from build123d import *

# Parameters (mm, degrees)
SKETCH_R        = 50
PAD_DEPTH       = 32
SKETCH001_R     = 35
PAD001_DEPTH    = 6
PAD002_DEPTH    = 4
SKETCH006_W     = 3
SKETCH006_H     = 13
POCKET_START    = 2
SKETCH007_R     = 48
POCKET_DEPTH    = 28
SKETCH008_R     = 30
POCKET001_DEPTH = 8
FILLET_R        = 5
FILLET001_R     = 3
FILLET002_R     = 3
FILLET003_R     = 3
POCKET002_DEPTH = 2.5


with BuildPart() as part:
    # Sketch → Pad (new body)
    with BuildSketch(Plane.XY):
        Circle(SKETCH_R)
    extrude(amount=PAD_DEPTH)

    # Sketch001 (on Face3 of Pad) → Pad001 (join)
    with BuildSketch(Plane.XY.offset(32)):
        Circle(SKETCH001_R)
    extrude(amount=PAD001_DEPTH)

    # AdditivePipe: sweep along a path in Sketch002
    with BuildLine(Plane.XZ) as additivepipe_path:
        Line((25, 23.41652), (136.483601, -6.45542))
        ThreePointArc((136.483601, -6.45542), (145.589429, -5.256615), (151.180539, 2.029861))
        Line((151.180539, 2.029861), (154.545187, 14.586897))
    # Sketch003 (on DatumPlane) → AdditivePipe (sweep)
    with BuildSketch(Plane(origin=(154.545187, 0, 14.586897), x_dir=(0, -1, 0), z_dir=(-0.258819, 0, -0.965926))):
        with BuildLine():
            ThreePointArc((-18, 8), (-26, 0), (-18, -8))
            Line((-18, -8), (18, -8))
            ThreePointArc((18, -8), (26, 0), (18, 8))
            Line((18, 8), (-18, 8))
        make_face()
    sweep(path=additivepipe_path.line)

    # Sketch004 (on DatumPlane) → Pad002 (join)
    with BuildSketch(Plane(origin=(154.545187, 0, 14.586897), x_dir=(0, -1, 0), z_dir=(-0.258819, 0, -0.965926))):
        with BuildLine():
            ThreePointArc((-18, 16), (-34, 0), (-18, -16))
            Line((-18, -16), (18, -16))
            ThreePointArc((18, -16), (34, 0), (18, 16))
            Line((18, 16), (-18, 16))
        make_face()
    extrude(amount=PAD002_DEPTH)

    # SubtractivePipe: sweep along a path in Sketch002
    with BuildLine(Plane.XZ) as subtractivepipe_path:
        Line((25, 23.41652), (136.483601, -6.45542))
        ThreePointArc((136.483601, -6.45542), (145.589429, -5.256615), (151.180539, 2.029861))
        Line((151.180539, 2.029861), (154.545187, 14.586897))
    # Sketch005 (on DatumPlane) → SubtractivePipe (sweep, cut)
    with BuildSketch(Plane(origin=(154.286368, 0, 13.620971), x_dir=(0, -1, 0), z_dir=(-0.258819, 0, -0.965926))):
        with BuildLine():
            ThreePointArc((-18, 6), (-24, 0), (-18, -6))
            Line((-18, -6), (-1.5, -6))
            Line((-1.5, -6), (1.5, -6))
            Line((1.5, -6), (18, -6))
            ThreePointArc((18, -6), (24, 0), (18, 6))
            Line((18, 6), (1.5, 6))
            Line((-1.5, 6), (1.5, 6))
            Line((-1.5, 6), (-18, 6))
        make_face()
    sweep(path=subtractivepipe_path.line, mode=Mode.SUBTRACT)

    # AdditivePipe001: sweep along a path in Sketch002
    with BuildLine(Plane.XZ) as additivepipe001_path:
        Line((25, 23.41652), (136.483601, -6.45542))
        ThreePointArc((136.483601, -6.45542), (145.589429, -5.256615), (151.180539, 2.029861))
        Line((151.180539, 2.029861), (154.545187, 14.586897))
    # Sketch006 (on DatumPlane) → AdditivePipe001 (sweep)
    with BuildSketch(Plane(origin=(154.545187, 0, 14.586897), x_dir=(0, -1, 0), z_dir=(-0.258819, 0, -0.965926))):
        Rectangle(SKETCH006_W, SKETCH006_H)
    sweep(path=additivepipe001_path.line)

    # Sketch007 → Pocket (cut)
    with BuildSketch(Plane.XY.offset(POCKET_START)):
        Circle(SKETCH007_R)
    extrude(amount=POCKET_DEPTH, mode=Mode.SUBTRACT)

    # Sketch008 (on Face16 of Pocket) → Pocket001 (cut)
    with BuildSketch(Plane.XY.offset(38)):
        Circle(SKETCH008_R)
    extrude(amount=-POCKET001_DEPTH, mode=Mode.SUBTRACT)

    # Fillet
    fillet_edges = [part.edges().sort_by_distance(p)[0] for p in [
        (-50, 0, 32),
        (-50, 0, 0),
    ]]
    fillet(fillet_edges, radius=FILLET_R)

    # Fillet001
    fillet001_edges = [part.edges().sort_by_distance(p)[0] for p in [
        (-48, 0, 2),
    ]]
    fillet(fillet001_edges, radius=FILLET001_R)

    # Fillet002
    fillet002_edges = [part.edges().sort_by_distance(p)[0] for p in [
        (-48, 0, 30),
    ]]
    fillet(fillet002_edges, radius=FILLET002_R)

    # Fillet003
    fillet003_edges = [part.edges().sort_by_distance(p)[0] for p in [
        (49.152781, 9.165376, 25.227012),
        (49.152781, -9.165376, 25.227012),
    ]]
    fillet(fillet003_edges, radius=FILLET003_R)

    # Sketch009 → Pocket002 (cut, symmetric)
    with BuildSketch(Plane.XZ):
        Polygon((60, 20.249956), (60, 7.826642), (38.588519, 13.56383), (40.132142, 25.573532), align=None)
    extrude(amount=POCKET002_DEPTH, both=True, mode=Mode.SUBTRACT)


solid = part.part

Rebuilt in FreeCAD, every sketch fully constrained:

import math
import FreeCAD as App
import Part
import Sketcher
Q = App.Units.Quantity


def edges_at(feature, points):
    """Names of the edges that pass closest to the given points."""
    edges = feature.Shape.Edges
    near = lambda p: min(range(len(edges)), key=lambda i: edges[i].distToShape(Part.Vertex(*p))[0])
    return sorted({f"Edge{near(p) + 1}" for p in points})


def add_polygon(sketch, points):
    """Adds a closed chain of lines whose ends are joined by coincident constraints."""
    first, n = sketch.GeometryCount, len(points)
    for a, b in zip(points, points[1:] + points[:1]):
        sketch.addGeometry(Part.LineSegment(App.Vector(*a, 0), App.Vector(*b, 0)), False)
    for i in range(n):
        sketch.addConstraint(Sketcher.Constraint("Coincident", first + i, 2, first + (i + 1) % n, 1))

doc = App.newDocument("Part")
body = doc.addObject("PartDesign::Body", "Body")

# Sketch on XY plane
sketch1 = body.newObject("Sketcher::SketchObject", "Sketch")
sketch1.AttachmentSupport = (doc.getObject("XY_Plane"), [""])
sketch1.MapMode = "FlatFace"
sketch1.addGeometry(Part.Circle(App.Vector(0, 0, 0), App.Vector(0, 0, 1), 50), False)
sketch1.addConstraint(Sketcher.Constraint("Coincident", 0, 3, -1, 1))
sketch1.addConstraint(Sketcher.Constraint("Diameter", 0, 100.0))
pad1 = body.newObject("PartDesign::Pad", "Pad")
pad1.Profile = sketch1
pad1.Length = 32

# Sketch on XY plane
sketch2 = body.newObject("Sketcher::SketchObject", "Sketch001")
sketch2.AttachmentSupport = (doc.getObject("XY_Plane"), [""])
sketch2.MapMode = "FlatFace"
sketch2.AttachmentOffset = App.Placement(App.Vector(0, 0, 32), App.Rotation())
sketch2.addGeometry(Part.Circle(App.Vector(0, 0, 0), App.Vector(0, 0, 1), 35), False)
sketch2.addConstraint(Sketcher.Constraint("Coincident", 0, 3, -1, 1))
sketch2.addConstraint(Sketcher.Constraint("Diameter", 0, 70.0))
pad2 = body.newObject("PartDesign::Pad", "Pad001")
pad2.Profile = sketch2
pad2.Length = 6

# Sketch on an angled plane
sketch3 = body.newObject("Sketcher::SketchObject", "Sketch002")
sketch3.Placement = App.Placement(App.Vector(154.545187, 0, 14.586897), App.Rotation(App.Vector(0, -1, 0), App.Vector(-0.965925849, 0, 0.25881896), App.Vector(-0.25881896, 0, -0.965925849), "ZXY"))
sketch3.addGeometry(Part.ArcOfCircle(Part.Circle(App.Vector(-18, 0, 0), App.Vector(0, 0, 1), 8), math.radians(90), math.radians(270)), False)
sketch3.addGeometry(Part.LineSegment(App.Vector(-18, -8, 0), App.Vector(18, -8, 0)), False)
sketch3.addGeometry(Part.ArcOfCircle(Part.Circle(App.Vector(18, 0, 0), App.Vector(0, 0, 1), 8), math.radians(-90), math.radians(90)), False)
sketch3.addGeometry(Part.LineSegment(App.Vector(18, 8, 0), App.Vector(-18, 8, 0)), False)
sketch3.addConstraint(Sketcher.Constraint("Tangent", 0, 2, 1, 1))
sketch3.addConstraint(Sketcher.Constraint("Tangent", 1, 2, 2, 1))
sketch3.addConstraint(Sketcher.Constraint("Tangent", 2, 2, 3, 1))
sketch3.addConstraint(Sketcher.Constraint("Tangent", 3, 2, 0, 1))
sketch3.addConstraint(Sketcher.Constraint("Horizontal", 1))
sketch3.addConstraint(Sketcher.Constraint("Horizontal", 3))
sketch3.addConstraint(Sketcher.Constraint("Symmetric", 0, 3, 2, 3, -1, 1))
sketch3.addConstraint(Sketcher.Constraint("Radius", 0, 8.0))
sketch3.addConstraint(Sketcher.Constraint("DistanceX", 1, 1, 1, 2, 36.0))

# Sketch on XZ plane
sketch4 = body.newObject("Sketcher::SketchObject", "Sketch003")
sketch4.AttachmentSupport = (doc.getObject("XZ_Plane"), [""])
sketch4.MapMode = "FlatFace"
sketch4.addGeometry(Part.LineSegment(App.Vector(25, 23.41652, 0), App.Vector(136.483601, -6.45542, 0)), False)
sketch4.addGeometry(Part.ArcOfCircle(Part.Circle(App.Vector(139.589429, 5.13569, 0), App.Vector(0, 0, 1), 12), math.radians(-104.999999), math.radians(-15.000002)), False)
sketch4.addGeometry(Part.LineSegment(App.Vector(151.180539, 2.029861, 0), App.Vector(154.545187, 14.586897, 0)), False)
sketch4.addConstraint(Sketcher.Constraint("Tangent", 0, 2, 1, 1))
sketch4.addConstraint(Sketcher.Constraint("Tangent", 1, 2, 2, 1))
sketch4.addConstraint(Sketcher.Constraint("Perpendicular", 0, 2))
sketch4.addConstraint(Sketcher.Constraint("Radius", 1, 12.0))
sketch4.addConstraint(Sketcher.Constraint("Angle", 0, Q("-15 deg")))
sketch4.addConstraint(Sketcher.Constraint("Distance", 2, 13.0))
sketch4.addConstraint(Sketcher.Constraint("DistanceX", -1, 1, 0, 1, 25.0))
sketch4.addConstraint(Sketcher.Constraint("DistanceX", -1, 1, 0, 2, 136.483601))
sketch4.addConstraint(Sketcher.Constraint("DistanceY", -1, 1, 1, 3, 5.13569))
doc.recompute()

additivepipe = body.newObject("PartDesign::AdditivePipe", "AdditivePipe")
additivepipe.Profile = sketch3
additivepipe.Spine = (sketch4, ["Edge1", "Edge2", "Edge3"])

# Sketch on an angled plane
sketch5 = body.newObject("Sketcher::SketchObject", "Sketch004")
sketch5.Placement = App.Placement(App.Vector(154.545187, 0, 14.586897), App.Rotation(App.Vector(0, -1, 0), App.Vector(-0.965925849, 0, 0.25881896), App.Vector(-0.25881896, 0, -0.965925849), "ZXY"))
sketch5.addGeometry(Part.ArcOfCircle(Part.Circle(App.Vector(-18, 0, 0), App.Vector(0, 0, 1), 16), math.radians(90), math.radians(270)), False)
sketch5.addGeometry(Part.LineSegment(App.Vector(-18, -16, 0), App.Vector(18, -16, 0)), False)
sketch5.addGeometry(Part.ArcOfCircle(Part.Circle(App.Vector(18, 0, 0), App.Vector(0, 0, 1), 16), math.radians(-90), math.radians(90)), False)
sketch5.addGeometry(Part.LineSegment(App.Vector(18, 16, 0), App.Vector(-18, 16, 0)), False)
sketch5.addConstraint(Sketcher.Constraint("Tangent", 0, 2, 1, 1))
sketch5.addConstraint(Sketcher.Constraint("Tangent", 1, 2, 2, 1))
sketch5.addConstraint(Sketcher.Constraint("Tangent", 2, 2, 3, 1))
sketch5.addConstraint(Sketcher.Constraint("Tangent", 3, 2, 0, 1))
sketch5.addConstraint(Sketcher.Constraint("Horizontal", 1))
sketch5.addConstraint(Sketcher.Constraint("Horizontal", 3))
sketch5.addConstraint(Sketcher.Constraint("Symmetric", 0, 3, 2, 3, -1, 1))
sketch5.addConstraint(Sketcher.Constraint("Radius", 0, 16.0))
sketch5.addConstraint(Sketcher.Constraint("DistanceX", 1, 1, 1, 2, 36.0))
pad3 = body.newObject("PartDesign::Pad", "Pad002")
pad3.Profile = sketch5
pad3.Length = 4

# Sketch on an angled plane
sketch6 = body.newObject("Sketcher::SketchObject", "Sketch005")
sketch6.Placement = App.Placement(App.Vector(154.286368, 0, 13.620971), App.Rotation(App.Vector(0, -1, 0), App.Vector(-0.965925849, 0, 0.25881896), App.Vector(-0.25881896, 0, -0.965925849), "ZXY"))
sketch6.addGeometry(Part.ArcOfCircle(Part.Circle(App.Vector(-18, 0, 0), App.Vector(0, 0, 1), 6), math.radians(90), math.radians(270)), False)
sketch6.addGeometry(Part.LineSegment(App.Vector(-18, -6, 0), App.Vector(18, -6, 0)), False)
sketch6.addGeometry(Part.ArcOfCircle(Part.Circle(App.Vector(18, 0, 0), App.Vector(0, 0, 1), 6), math.radians(-90), math.radians(90)), False)
sketch6.addGeometry(Part.LineSegment(App.Vector(18, 6, 0), App.Vector(-18, 6, 0)), False)
sketch6.addConstraint(Sketcher.Constraint("Tangent", 0, 2, 1, 1))
sketch6.addConstraint(Sketcher.Constraint("Tangent", 1, 2, 2, 1))
sketch6.addConstraint(Sketcher.Constraint("Tangent", 2, 2, 3, 1))
sketch6.addConstraint(Sketcher.Constraint("Tangent", 3, 2, 0, 1))
sketch6.addConstraint(Sketcher.Constraint("Horizontal", 1))
sketch6.addConstraint(Sketcher.Constraint("Horizontal", 3))
sketch6.addConstraint(Sketcher.Constraint("Symmetric", 0, 3, 2, 3, -1, 1))
sketch6.addConstraint(Sketcher.Constraint("Radius", 0, 6.0))
sketch6.addConstraint(Sketcher.Constraint("DistanceX", 1, 1, 1, 2, 36.0))

# Sketch on XZ plane
sketch7 = body.newObject("Sketcher::SketchObject", "Sketch006")
sketch7.AttachmentSupport = (doc.getObject("XZ_Plane"), [""])
sketch7.MapMode = "FlatFace"
sketch7.addGeometry(Part.LineSegment(App.Vector(25, 23.41652, 0), App.Vector(136.483601, -6.45542, 0)), False)
sketch7.addGeometry(Part.ArcOfCircle(Part.Circle(App.Vector(139.589429, 5.13569, 0), App.Vector(0, 0, 1), 12), math.radians(-104.999999), math.radians(-15.000002)), False)
sketch7.addGeometry(Part.LineSegment(App.Vector(151.180539, 2.029861, 0), App.Vector(154.545187, 14.586897, 0)), False)
sketch7.addConstraint(Sketcher.Constraint("Tangent", 0, 2, 1, 1))
sketch7.addConstraint(Sketcher.Constraint("Tangent", 1, 2, 2, 1))
sketch7.addConstraint(Sketcher.Constraint("Perpendicular", 0, 2))
sketch7.addConstraint(Sketcher.Constraint("Radius", 1, 12.0))
sketch7.addConstraint(Sketcher.Constraint("Angle", 0, Q("-15 deg")))
sketch7.addConstraint(Sketcher.Constraint("Distance", 2, 13.0))
sketch7.addConstraint(Sketcher.Constraint("DistanceX", -1, 1, 0, 1, 25.0))
sketch7.addConstraint(Sketcher.Constraint("DistanceX", -1, 1, 0, 2, 136.483601))
sketch7.addConstraint(Sketcher.Constraint("DistanceY", -1, 1, 1, 3, 5.13569))
doc.recompute()

subtractivepipe = body.newObject("PartDesign::SubtractivePipe", "SubtractivePipe")
subtractivepipe.Profile = sketch6
subtractivepipe.Spine = (sketch7, ["Edge1", "Edge2", "Edge3"])

# Sketch on an angled plane
sketch8 = body.newObject("Sketcher::SketchObject", "Sketch007")
sketch8.Placement = App.Placement(App.Vector(154.545187, 0, 14.586897), App.Rotation(App.Vector(0, -1, 0), App.Vector(-0.965925849, 0, 0.25881896), App.Vector(-0.25881896, 0, -0.965925849), "ZXY"))
add_polygon(sketch8, [(-1.5, 6.5), (-1.5, -6.5), (1.5, -6.5), (1.5, 6.5)])  # lines 0-3
sketch8.addConstraint(Sketcher.Constraint("Vertical", 0))
sketch8.addConstraint(Sketcher.Constraint("Horizontal", 1))
sketch8.addConstraint(Sketcher.Constraint("Vertical", 2))
sketch8.addConstraint(Sketcher.Constraint("Horizontal", 3))
sketch8.addConstraint(Sketcher.Constraint("Symmetric", 0, 2, 2, 2, -1, 1))
sketch8.addConstraint(Sketcher.Constraint("DistanceX", 1, 1, 1, 2, 3.0))
sketch8.addConstraint(Sketcher.Constraint("DistanceY", 0, 2, 0, 1, 13.0))

# Sketch on XZ plane
sketch9 = body.newObject("Sketcher::SketchObject", "Sketch008")
sketch9.AttachmentSupport = (doc.getObject("XZ_Plane"), [""])
sketch9.MapMode = "FlatFace"
sketch9.addGeometry(Part.LineSegment(App.Vector(25, 23.41652, 0), App.Vector(136.483601, -6.45542, 0)), False)
sketch9.addGeometry(Part.ArcOfCircle(Part.Circle(App.Vector(139.589429, 5.13569, 0), App.Vector(0, 0, 1), 12), math.radians(-104.999999), math.radians(-15.000002)), False)
sketch9.addGeometry(Part.LineSegment(App.Vector(151.180539, 2.029861, 0), App.Vector(154.545187, 14.586897, 0)), False)
sketch9.addConstraint(Sketcher.Constraint("Tangent", 0, 2, 1, 1))
sketch9.addConstraint(Sketcher.Constraint("Tangent", 1, 2, 2, 1))
sketch9.addConstraint(Sketcher.Constraint("Perpendicular", 0, 2))
sketch9.addConstraint(Sketcher.Constraint("Radius", 1, 12.0))
sketch9.addConstraint(Sketcher.Constraint("Angle", 0, Q("-15 deg")))
sketch9.addConstraint(Sketcher.Constraint("Distance", 2, 13.0))
sketch9.addConstraint(Sketcher.Constraint("DistanceX", -1, 1, 0, 1, 25.0))
sketch9.addConstraint(Sketcher.Constraint("DistanceX", -1, 1, 0, 2, 136.483601))
sketch9.addConstraint(Sketcher.Constraint("DistanceY", -1, 1, 1, 3, 5.13569))
doc.recompute()

additivepipe2 = body.newObject("PartDesign::AdditivePipe", "AdditivePipe001")
additivepipe2.Profile = sketch8
additivepipe2.Spine = (sketch9, ["Edge1", "Edge2", "Edge3"])

# Sketch on XY plane
sketch10 = body.newObject("Sketcher::SketchObject", "Sketch009")
sketch10.AttachmentSupport = (doc.getObject("XY_Plane"), [""])
sketch10.MapMode = "FlatFace"
sketch10.AttachmentOffset = App.Placement(App.Vector(0, 0, 2), App.Rotation())
sketch10.addGeometry(Part.Circle(App.Vector(0, 0, 0), App.Vector(0, 0, 1), 48), False)
sketch10.addConstraint(Sketcher.Constraint("Coincident", 0, 3, -1, 1))
sketch10.addConstraint(Sketcher.Constraint("Diameter", 0, 96.0))
pocket1 = body.newObject("PartDesign::Pocket", "Pocket")
pocket1.Profile = sketch10
pocket1.Length = 28
pocket1.Reversed = True

# Sketch on XY plane
sketch11 = body.newObject("Sketcher::SketchObject", "Sketch010")
sketch11.AttachmentSupport = (doc.getObject("XY_Plane"), [""])
sketch11.MapMode = "FlatFace"
sketch11.AttachmentOffset = App.Placement(App.Vector(0, 0, 38), App.Rotation())
sketch11.addGeometry(Part.Circle(App.Vector(0, 0, 0), App.Vector(0, 0, 1), 30), False)
sketch11.addConstraint(Sketcher.Constraint("Coincident", 0, 3, -1, 1))
sketch11.addConstraint(Sketcher.Constraint("Diameter", 0, 60.0))
pocket2 = body.newObject("PartDesign::Pocket", "Pocket001")
pocket2.Profile = sketch11
pocket2.Length = 8
doc.recompute()

fillet = body.newObject("PartDesign::Fillet", "Fillet")
fillet.Base = (pocket2, edges_at(pocket2, [(-50, 0, 32), (-50, 0, 0)]))
fillet.Radius = 5
doc.recompute()

fillet2 = body.newObject("PartDesign::Fillet", "Fillet001")
fillet2.Base = (fillet, edges_at(fillet, [(-48, 0, 2)]))
fillet2.Radius = 3
doc.recompute()

fillet3 = body.newObject("PartDesign::Fillet", "Fillet002")
fillet3.Base = (fillet2, edges_at(fillet2, [(-48, 0, 30)]))
fillet3.Radius = 3
doc.recompute()

fillet4 = body.newObject("PartDesign::Fillet", "Fillet003")
fillet4.Base = (fillet3, edges_at(fillet3, [(49.153, 9.165, 25.227), (49.153, -9.165, 25.227)]))
fillet4.Radius = 3

# Sketch on XZ plane
sketch12 = body.newObject("Sketcher::SketchObject", "Sketch011")
sketch12.AttachmentSupport = (doc.getObject("XZ_Plane"), [""])
sketch12.MapMode = "FlatFace"
add_polygon(sketch12, [(60, 7.826642), (60, 20.249956), (40.132142, 25.573532), (38.588519, 13.56383)])  # lines 0-3
sketch12.addConstraint(Sketcher.Constraint("Vertical", 0))
sketch12.addConstraint(Sketcher.Constraint("Parallel", 1, 3))
sketch12.addConstraint(Sketcher.Constraint("Angle", 1, Q("165.000001 deg")))
sketch12.addConstraint(Sketcher.Constraint("DistanceX", -1, 1, 0, 2, 60.0))
sketch12.addConstraint(Sketcher.Constraint("Distance", 1, 20.56872))
sketch12.addConstraint(Sketcher.Constraint("DistanceY", 0, 1, 0, 2, 12.423314))
sketch12.addConstraint(Sketcher.Constraint("DistanceY", -1, 1, 1, 2, 25.573532))
sketch12.addConstraint(Sketcher.Constraint("DistanceX", -1, 1, 2, 2, 38.588519))
pocket3 = body.newObject("PartDesign::Pocket", "Pocket002")
pocket3.Profile = sketch12
pocket3.Length = 5
pocket3.Midplane = True

doc.recompute()
